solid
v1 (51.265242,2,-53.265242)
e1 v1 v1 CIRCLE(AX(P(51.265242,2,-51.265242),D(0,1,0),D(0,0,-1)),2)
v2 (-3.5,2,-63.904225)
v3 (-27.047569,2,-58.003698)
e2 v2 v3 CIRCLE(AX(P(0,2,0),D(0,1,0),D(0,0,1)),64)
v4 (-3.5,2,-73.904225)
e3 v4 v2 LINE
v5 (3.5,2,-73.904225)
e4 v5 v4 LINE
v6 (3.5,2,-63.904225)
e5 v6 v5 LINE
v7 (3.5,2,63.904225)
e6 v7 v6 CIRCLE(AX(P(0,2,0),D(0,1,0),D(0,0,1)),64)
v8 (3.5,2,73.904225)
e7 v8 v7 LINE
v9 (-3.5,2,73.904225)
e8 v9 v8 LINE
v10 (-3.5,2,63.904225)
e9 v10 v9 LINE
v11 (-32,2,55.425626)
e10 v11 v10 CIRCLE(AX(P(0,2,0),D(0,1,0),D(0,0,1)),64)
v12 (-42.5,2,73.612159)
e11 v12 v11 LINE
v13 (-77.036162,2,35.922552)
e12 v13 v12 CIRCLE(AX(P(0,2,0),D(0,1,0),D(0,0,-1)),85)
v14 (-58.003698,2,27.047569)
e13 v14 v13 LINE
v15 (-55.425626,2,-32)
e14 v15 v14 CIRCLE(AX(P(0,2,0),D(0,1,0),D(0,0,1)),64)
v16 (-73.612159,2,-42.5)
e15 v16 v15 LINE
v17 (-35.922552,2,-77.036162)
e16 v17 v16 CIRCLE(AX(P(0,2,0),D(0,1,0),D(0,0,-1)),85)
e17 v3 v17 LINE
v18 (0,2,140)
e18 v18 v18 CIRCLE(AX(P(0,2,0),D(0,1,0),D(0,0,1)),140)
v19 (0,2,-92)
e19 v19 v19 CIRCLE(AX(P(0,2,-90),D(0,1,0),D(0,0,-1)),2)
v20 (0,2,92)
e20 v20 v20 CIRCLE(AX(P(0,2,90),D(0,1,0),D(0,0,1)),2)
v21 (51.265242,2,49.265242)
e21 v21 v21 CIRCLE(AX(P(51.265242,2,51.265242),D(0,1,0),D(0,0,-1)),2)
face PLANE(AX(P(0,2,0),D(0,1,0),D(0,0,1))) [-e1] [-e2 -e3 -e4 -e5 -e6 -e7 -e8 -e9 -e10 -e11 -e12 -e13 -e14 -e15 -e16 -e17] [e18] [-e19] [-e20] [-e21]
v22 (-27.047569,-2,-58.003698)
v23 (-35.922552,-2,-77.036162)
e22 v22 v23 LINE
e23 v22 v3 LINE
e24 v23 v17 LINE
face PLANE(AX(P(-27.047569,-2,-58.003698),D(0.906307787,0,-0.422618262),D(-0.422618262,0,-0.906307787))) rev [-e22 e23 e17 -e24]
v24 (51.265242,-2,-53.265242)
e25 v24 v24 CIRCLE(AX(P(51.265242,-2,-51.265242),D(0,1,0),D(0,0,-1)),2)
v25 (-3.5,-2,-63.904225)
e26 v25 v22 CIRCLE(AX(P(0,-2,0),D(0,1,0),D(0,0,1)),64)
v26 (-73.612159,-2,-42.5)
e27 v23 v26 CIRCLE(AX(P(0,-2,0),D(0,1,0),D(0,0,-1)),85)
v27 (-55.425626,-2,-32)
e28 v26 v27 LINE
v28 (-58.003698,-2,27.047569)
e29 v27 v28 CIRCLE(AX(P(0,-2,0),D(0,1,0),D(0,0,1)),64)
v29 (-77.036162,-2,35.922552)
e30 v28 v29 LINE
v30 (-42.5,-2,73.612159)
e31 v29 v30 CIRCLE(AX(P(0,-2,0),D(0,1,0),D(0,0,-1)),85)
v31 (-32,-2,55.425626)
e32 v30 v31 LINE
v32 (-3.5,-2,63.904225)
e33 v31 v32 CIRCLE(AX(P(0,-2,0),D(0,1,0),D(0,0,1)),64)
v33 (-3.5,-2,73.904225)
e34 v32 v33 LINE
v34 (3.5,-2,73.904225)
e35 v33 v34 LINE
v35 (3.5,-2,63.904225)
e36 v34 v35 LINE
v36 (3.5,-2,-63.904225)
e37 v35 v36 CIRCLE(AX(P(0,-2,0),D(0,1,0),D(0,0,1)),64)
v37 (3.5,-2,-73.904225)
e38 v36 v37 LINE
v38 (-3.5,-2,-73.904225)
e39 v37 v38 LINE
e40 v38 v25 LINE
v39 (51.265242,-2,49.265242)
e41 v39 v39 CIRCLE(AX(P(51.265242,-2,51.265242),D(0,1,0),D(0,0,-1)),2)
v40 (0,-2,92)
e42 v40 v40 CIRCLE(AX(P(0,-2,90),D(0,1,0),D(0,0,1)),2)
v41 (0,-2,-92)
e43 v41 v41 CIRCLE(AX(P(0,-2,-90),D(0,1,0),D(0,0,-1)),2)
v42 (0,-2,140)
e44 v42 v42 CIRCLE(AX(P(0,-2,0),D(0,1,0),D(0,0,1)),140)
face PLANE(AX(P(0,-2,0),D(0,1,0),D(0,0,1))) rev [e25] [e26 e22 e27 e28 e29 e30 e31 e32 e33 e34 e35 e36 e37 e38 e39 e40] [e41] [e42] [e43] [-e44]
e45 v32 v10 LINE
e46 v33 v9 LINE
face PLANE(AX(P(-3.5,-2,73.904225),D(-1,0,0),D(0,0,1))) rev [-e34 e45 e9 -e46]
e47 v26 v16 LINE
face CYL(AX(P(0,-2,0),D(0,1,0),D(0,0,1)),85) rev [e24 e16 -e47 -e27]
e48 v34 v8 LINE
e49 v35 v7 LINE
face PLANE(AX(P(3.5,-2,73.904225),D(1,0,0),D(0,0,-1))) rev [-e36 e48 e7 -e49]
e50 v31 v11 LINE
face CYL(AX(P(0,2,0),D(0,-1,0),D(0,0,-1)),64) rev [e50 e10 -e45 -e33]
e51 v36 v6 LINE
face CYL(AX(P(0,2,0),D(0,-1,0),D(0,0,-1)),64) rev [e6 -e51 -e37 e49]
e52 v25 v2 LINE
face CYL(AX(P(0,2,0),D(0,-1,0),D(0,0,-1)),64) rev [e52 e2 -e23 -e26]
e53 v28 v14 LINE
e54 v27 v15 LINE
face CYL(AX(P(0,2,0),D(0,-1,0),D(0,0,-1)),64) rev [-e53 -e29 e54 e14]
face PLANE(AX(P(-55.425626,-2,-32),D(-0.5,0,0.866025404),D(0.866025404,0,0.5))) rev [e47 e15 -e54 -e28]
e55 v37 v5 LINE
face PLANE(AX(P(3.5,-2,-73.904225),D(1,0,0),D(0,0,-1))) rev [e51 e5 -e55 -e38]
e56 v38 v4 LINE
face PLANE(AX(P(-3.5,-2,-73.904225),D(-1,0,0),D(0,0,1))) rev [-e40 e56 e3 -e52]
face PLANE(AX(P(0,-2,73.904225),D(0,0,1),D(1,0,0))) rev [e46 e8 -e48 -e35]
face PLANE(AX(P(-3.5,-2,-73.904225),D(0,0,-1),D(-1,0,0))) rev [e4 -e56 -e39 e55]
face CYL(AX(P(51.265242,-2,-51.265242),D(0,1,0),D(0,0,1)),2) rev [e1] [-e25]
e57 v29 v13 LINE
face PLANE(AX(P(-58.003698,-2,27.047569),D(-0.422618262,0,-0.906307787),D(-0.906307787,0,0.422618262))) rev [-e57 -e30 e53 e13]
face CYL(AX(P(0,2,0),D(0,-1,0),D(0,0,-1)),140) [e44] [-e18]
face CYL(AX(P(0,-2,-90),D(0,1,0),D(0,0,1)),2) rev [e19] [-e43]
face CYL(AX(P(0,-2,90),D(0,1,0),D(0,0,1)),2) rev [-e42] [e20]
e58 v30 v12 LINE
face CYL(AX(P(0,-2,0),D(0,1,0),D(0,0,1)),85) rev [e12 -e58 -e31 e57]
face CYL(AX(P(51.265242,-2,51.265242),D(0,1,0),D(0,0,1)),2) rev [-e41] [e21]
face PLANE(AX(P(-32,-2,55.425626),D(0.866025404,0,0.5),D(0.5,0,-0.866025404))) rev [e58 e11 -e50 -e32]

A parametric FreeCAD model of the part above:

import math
import FreeCAD as App
import Part
import Sketcher

V = App.Vector
Q = App.Units.Quantity

doc = App.newDocument("Part")
body = doc.addObject("PartDesign::Body", "Body")

# Sketch on XZ plane
sketch1 = body.newObject("Sketcher::SketchObject", "Sketch")
sketch1.AttachmentSupport = (doc.getObject("XZ_Plane"), [""])
sketch1.MapMode = "FlatFace"
sketch1.addGeometry([
    Part.Circle(V(0, 0, 0), V(0, 0, 1), 140),
    Part.Circle(V(0, 0, 0), V(0, 0, 1), 64),
], False)
sketch1.addConstraint([
    Sketcher.Constraint("Coincident", 0, 3, -1, 1),
    Sketcher.Constraint("Coincident", 1, 3, -1, 1),
    Sketcher.Constraint("Diameter", 0, 280.0),
    Sketcher.Constraint("Diameter", 1, 128.0),
])
pad1 = body.newObject("PartDesign::Pad", "Pad")
pad1.Profile = sketch1
pad1.Length = 4
pad1.Midplane = True

# Sketch on XZ plane
sketch2 = body.newObject("Sketcher::SketchObject", "Sketch001")
sketch2.AttachmentSupport = (doc.getObject("XZ_Plane"), [""])
sketch2.MapMode = "FlatFace"
sketch2.AttachmentOffset = App.Placement(V(0, 0, -2), App.Rotation())
sketch2.addGeometry([
    Part.LineSegment(V(4, -74, 0), V(-4, -74, 0)),  # 0
    Part.LineSegment(V(-4, -74, 0), V(-4, -64, 0)),  # 1
    Part.ArcOfCircle(Part.Circle(V(0, 0, 0), V(0, 0, 1), 64), math.radians(-93.13), math.radians(-86.87)),  # 2
    Part.LineSegment(V(4, -64, 0), V(4, -74, 0)),  # 3
    Part.LineSegment(V(4, 74, 0), V(4, 64, 0)),  # 4
    Part.ArcOfCircle(Part.Circle(V(0, 0, 0), V(0, 0, 1), 64), math.radians(86.87), math.radians(93.13)),  # 5
    Part.LineSegment(V(-4, 64, 0), V(-4, 74, 0)),  # 6
    Part.LineSegment(V(-4, 74, 0), V(4, 74, 0)),  # 7
], False)
sketch2.addConstraint([
    Sketcher.Constraint("Coincident", 0, 2, 1, 1),
    Sketcher.Constraint("Coincident", 1, 2, 2, 1),
    Sketcher.Constraint("Coincident", 2, 2, 3, 1),
    Sketcher.Constraint("Coincident", 3, 2, 0, 1),
    Sketcher.Constraint("Coincident", 4, 2, 5, 1),
    Sketcher.Constraint("Coincident", 5, 2, 6, 1),
    Sketcher.Constraint("Coincident", 6, 2, 7, 1),
    Sketcher.Constraint("Coincident", 7, 2, 4, 1),
    Sketcher.Constraint("Horizontal", 0),
    Sketcher.Constraint("Vertical", 1),
    Sketcher.Constraint("Vertical", 3),
    Sketcher.Constraint("Vertical", 4),
    Sketcher.Constraint("Vertical", 6),
    Sketcher.Constraint("Horizontal", 7),
    Sketcher.Constraint("Coincident", 2, 3, -1, 1),
    Sketcher.Constraint("Coincident", 5, 3, -1, 1),
    Sketcher.Constraint("Equal", 2, 5),
    Sketcher.Constraint("Symmetric", 3, 2, 6, 2, -1, 1),
    Sketcher.Constraint("Horizontal", 1, 2, 2, 2),
    Sketcher.Constraint("Horizontal", 4, 2, 5, 2),
    Sketcher.Constraint("Radius", 2, 64.0),
    Sketcher.Constraint("DistanceX", 0, 2, 0, 1, 7.0),
    Sketcher.Constraint("DistanceY", 1, 1, 1, 2, 10.0),
])
pocket1 = body.newObject("PartDesign::Pocket", "Pocket")
pocket1.Profile = sketch2
pocket1.Type = "ThroughAll"
pocket1.Reversed = True

# Sketch on XZ plane
sketch3 = body.newObject("Sketcher::SketchObject", "Sketch002")
sketch3.AttachmentSupport = (doc.getObject("XZ_Plane"), [""])
sketch3.MapMode = "FlatFace"
sketch3.AttachmentOffset = App.Placement(V(0, 0, -2), App.Rotation())
sketch3.addGeometry([
    Part.Circle(V(-51.3, -51.3, 0), V(0, 0, 1), 2),
    Part.Circle(V(51.3, 51.3, 0), V(0, 0, 1), 2),
], False)
sketch3.addConstraint([
    Sketcher.Constraint("Equal", 0, 1),
    Sketcher.Constraint("Symmetric", 0, 3, 1, 3, -1, 1),
    Sketcher.Constraint("Diameter", 0, 4.0),
    Sketcher.Constraint("DistanceX", 0, 3, -1, 1, 51.265242),
    Sketcher.Constraint("DistanceY", 0, 3, -1, 1, 51.265242),
])
pocket2 = body.newObject("PartDesign::Pocket", "Pocket001")
pocket2.Profile = sketch3
pocket2.Type = "ThroughAll"
pocket2.Reversed = True

# Sketch on XZ plane
sketch4 = body.newObject("Sketcher::SketchObject", "Sketch003")
sketch4.AttachmentSupport = (doc.getObject("XZ_Plane"), [""])
sketch4.MapMode = "FlatFace"
sketch4.AttachmentOffset = App.Placement(V(0, 0, -2), App.Rotation())
sketch4.addGeometry([
    Part.Circle(V(0, 90, 0), V(0, 0, 1), 2),
    Part.Circle(V(0, -90, 0), V(0, 0, 1), 2),
], False)
sketch4.addConstraint([
    Sketcher.Constraint("Equal", 0, 1),
    Sketcher.Constraint("Symmetric", 0, 3, 1, 3, -1, 1),
    Sketcher.Constraint("PointOnObject", 0, 3, -2),
    Sketcher.Constraint("Diameter", 0, 4.0),
    Sketcher.Constraint("DistanceY", -1, 1, 0, 3, 90.0),
])
pocket3 = body.newObject("PartDesign::Pocket", "Pocket002")
pocket3.Profile = sketch4
pocket3.Type = "ThroughAll"
pocket3.Reversed = True

# Sketch on XZ plane
sketch5 = body.newObject("Sketcher::SketchObject", "Sketch004")
sketch5.AttachmentSupport = (doc.getObject("XZ_Plane"), [""])
sketch5.MapMode = "FlatFace"
sketch5.AttachmentOffset = App.Placement(V(0, 0, -2), App.Rotation())
sketch5.addGeometry([
    Part.Circle(V(-51.3, 51.3, 0), V(0, 0, 1), 2),
    Part.Circle(V(51.3, -51.3, 0), V(0, 0, 1), 2),
], False)
sketch5.addConstraint([
    Sketcher.Constraint("Equal", 0, 1),
    Sketcher.Constraint("Symmetric", 0, 3, 1, 3, -1, 1),
    Sketcher.Constraint("Diameter", 0, 4.0),
    Sketcher.Constraint("DistanceX", 0, 3, -1, 1, 51.265242),
    Sketcher.Constraint("DistanceY", -1, 1, 0, 3, 51.265242),
])
pocket4 = body.newObject("PartDesign::Pocket", "Pocket003")
pocket4.Profile = sketch5
pocket4.Type = "ThroughAll"
pocket4.Reversed = True

# Sketch on XZ plane
sketch6 = body.newObject("Sketcher::SketchObject", "Sketch005")
sketch6.AttachmentSupport = (doc.getObject("XZ_Plane"), [""])
sketch6.MapMode = "FlatFace"
sketch6.AttachmentOffset = App.Placement(V(0, 0, -2), App.Rotation())
sketch6.addGeometry([
    Part.LineSegment(V(-27, -58, 0), V(-36, -77, 0)),  # 0
    Part.ArcOfCircle(Part.Circle(V(0, 0, 0), V(0, 0, 1), 85), math.radians(-150), math.radians(-115)),  # 1
    Part.LineSegment(V(-74, -42, 0), V(-55, -32, 0)),  # 2
    Part.ArcOfCircle(Part.Circle(V(0, 0, 0), V(0, 0, 1), 64), math.radians(-150), math.radians(-115)),  # 3
    Part.LineSegment(V(-58, 27, 0), V(-77, 36, 0)),  # 4
    Part.ArcOfCircle(Part.Circle(V(0, 0, 0), V(0, 0, 1), 85), math.radians(120), math.radians(155)),  # 5
    Part.LineSegment(V(-42, 74, 0), V(-32, 55, 0)),  # 6
    Part.ArcOfCircle(Part.Circle(V(0, 0, 0), V(0, 0, 1), 64), math.radians(120), math.radians(155)),  # 7
], False)
sketch6.addConstraint([
    Sketcher.Constraint("Coincident", 0, 2, 1, 2),
    Sketcher.Constraint("Coincident", 1, 1, 2, 1),
    Sketcher.Constraint("Coincident", 2, 2, 3, 1),
    Sketcher.Constraint("Coincident", 3, 2, 0, 1),
    Sketcher.Constraint("Coincident", 4, 2, 5, 2),
    Sketcher.Constraint("Coincident", 5, 1, 6, 1),
    Sketcher.Constraint("Coincident", 6, 2, 7, 1),
    Sketcher.Constraint("Coincident", 7, 2, 4, 1),
    Sketcher.Constraint("Coincident", 1, 3, -1, 1),
    Sketcher.Constraint("Coincident", 3, 3, -1, 1),
    Sketcher.Constraint("Coincident", 5, 3, -1, 1),
    Sketcher.Constraint("Coincident", 7, 3, -1, 1),
    Sketcher.Constraint("Equal", 1, 5),
    Sketcher.Constraint("Equal", 3, 7),
    Sketcher.Constraint("Perpendicular", 0, 4),
    Sketcher.Constraint("Perpendicular", 2, 6),
    Sketcher.Constraint("Radius", 1, 85.0),
    Sketcher.Constraint("Radius", 3, 64.0),
    Sketcher.Constraint("Angle", 0, Q("-115 deg")),
    Sketcher.Constraint("Angle", 2, Q("30 deg")),
    Sketcher.Constraint("DistanceY", 2, 2, -1, 1, 32.0),
    Sketcher.Constraint("DistanceX", 6, 2, -1, 1, 32.0),
    Sketcher.Constraint("DistanceY", 3, 2, -1, 1, 58.003698),
    Sketcher.Constraint("DistanceX", 7, 2, -1, 1, 58.003698),
])
pocket5 = body.newObject("PartDesign::Pocket", "Pocket004")
pocket5.Profile = sketch6
pocket5.Type = "ThroughAll"
pocket5.Reversed = True

doc.recompute()
